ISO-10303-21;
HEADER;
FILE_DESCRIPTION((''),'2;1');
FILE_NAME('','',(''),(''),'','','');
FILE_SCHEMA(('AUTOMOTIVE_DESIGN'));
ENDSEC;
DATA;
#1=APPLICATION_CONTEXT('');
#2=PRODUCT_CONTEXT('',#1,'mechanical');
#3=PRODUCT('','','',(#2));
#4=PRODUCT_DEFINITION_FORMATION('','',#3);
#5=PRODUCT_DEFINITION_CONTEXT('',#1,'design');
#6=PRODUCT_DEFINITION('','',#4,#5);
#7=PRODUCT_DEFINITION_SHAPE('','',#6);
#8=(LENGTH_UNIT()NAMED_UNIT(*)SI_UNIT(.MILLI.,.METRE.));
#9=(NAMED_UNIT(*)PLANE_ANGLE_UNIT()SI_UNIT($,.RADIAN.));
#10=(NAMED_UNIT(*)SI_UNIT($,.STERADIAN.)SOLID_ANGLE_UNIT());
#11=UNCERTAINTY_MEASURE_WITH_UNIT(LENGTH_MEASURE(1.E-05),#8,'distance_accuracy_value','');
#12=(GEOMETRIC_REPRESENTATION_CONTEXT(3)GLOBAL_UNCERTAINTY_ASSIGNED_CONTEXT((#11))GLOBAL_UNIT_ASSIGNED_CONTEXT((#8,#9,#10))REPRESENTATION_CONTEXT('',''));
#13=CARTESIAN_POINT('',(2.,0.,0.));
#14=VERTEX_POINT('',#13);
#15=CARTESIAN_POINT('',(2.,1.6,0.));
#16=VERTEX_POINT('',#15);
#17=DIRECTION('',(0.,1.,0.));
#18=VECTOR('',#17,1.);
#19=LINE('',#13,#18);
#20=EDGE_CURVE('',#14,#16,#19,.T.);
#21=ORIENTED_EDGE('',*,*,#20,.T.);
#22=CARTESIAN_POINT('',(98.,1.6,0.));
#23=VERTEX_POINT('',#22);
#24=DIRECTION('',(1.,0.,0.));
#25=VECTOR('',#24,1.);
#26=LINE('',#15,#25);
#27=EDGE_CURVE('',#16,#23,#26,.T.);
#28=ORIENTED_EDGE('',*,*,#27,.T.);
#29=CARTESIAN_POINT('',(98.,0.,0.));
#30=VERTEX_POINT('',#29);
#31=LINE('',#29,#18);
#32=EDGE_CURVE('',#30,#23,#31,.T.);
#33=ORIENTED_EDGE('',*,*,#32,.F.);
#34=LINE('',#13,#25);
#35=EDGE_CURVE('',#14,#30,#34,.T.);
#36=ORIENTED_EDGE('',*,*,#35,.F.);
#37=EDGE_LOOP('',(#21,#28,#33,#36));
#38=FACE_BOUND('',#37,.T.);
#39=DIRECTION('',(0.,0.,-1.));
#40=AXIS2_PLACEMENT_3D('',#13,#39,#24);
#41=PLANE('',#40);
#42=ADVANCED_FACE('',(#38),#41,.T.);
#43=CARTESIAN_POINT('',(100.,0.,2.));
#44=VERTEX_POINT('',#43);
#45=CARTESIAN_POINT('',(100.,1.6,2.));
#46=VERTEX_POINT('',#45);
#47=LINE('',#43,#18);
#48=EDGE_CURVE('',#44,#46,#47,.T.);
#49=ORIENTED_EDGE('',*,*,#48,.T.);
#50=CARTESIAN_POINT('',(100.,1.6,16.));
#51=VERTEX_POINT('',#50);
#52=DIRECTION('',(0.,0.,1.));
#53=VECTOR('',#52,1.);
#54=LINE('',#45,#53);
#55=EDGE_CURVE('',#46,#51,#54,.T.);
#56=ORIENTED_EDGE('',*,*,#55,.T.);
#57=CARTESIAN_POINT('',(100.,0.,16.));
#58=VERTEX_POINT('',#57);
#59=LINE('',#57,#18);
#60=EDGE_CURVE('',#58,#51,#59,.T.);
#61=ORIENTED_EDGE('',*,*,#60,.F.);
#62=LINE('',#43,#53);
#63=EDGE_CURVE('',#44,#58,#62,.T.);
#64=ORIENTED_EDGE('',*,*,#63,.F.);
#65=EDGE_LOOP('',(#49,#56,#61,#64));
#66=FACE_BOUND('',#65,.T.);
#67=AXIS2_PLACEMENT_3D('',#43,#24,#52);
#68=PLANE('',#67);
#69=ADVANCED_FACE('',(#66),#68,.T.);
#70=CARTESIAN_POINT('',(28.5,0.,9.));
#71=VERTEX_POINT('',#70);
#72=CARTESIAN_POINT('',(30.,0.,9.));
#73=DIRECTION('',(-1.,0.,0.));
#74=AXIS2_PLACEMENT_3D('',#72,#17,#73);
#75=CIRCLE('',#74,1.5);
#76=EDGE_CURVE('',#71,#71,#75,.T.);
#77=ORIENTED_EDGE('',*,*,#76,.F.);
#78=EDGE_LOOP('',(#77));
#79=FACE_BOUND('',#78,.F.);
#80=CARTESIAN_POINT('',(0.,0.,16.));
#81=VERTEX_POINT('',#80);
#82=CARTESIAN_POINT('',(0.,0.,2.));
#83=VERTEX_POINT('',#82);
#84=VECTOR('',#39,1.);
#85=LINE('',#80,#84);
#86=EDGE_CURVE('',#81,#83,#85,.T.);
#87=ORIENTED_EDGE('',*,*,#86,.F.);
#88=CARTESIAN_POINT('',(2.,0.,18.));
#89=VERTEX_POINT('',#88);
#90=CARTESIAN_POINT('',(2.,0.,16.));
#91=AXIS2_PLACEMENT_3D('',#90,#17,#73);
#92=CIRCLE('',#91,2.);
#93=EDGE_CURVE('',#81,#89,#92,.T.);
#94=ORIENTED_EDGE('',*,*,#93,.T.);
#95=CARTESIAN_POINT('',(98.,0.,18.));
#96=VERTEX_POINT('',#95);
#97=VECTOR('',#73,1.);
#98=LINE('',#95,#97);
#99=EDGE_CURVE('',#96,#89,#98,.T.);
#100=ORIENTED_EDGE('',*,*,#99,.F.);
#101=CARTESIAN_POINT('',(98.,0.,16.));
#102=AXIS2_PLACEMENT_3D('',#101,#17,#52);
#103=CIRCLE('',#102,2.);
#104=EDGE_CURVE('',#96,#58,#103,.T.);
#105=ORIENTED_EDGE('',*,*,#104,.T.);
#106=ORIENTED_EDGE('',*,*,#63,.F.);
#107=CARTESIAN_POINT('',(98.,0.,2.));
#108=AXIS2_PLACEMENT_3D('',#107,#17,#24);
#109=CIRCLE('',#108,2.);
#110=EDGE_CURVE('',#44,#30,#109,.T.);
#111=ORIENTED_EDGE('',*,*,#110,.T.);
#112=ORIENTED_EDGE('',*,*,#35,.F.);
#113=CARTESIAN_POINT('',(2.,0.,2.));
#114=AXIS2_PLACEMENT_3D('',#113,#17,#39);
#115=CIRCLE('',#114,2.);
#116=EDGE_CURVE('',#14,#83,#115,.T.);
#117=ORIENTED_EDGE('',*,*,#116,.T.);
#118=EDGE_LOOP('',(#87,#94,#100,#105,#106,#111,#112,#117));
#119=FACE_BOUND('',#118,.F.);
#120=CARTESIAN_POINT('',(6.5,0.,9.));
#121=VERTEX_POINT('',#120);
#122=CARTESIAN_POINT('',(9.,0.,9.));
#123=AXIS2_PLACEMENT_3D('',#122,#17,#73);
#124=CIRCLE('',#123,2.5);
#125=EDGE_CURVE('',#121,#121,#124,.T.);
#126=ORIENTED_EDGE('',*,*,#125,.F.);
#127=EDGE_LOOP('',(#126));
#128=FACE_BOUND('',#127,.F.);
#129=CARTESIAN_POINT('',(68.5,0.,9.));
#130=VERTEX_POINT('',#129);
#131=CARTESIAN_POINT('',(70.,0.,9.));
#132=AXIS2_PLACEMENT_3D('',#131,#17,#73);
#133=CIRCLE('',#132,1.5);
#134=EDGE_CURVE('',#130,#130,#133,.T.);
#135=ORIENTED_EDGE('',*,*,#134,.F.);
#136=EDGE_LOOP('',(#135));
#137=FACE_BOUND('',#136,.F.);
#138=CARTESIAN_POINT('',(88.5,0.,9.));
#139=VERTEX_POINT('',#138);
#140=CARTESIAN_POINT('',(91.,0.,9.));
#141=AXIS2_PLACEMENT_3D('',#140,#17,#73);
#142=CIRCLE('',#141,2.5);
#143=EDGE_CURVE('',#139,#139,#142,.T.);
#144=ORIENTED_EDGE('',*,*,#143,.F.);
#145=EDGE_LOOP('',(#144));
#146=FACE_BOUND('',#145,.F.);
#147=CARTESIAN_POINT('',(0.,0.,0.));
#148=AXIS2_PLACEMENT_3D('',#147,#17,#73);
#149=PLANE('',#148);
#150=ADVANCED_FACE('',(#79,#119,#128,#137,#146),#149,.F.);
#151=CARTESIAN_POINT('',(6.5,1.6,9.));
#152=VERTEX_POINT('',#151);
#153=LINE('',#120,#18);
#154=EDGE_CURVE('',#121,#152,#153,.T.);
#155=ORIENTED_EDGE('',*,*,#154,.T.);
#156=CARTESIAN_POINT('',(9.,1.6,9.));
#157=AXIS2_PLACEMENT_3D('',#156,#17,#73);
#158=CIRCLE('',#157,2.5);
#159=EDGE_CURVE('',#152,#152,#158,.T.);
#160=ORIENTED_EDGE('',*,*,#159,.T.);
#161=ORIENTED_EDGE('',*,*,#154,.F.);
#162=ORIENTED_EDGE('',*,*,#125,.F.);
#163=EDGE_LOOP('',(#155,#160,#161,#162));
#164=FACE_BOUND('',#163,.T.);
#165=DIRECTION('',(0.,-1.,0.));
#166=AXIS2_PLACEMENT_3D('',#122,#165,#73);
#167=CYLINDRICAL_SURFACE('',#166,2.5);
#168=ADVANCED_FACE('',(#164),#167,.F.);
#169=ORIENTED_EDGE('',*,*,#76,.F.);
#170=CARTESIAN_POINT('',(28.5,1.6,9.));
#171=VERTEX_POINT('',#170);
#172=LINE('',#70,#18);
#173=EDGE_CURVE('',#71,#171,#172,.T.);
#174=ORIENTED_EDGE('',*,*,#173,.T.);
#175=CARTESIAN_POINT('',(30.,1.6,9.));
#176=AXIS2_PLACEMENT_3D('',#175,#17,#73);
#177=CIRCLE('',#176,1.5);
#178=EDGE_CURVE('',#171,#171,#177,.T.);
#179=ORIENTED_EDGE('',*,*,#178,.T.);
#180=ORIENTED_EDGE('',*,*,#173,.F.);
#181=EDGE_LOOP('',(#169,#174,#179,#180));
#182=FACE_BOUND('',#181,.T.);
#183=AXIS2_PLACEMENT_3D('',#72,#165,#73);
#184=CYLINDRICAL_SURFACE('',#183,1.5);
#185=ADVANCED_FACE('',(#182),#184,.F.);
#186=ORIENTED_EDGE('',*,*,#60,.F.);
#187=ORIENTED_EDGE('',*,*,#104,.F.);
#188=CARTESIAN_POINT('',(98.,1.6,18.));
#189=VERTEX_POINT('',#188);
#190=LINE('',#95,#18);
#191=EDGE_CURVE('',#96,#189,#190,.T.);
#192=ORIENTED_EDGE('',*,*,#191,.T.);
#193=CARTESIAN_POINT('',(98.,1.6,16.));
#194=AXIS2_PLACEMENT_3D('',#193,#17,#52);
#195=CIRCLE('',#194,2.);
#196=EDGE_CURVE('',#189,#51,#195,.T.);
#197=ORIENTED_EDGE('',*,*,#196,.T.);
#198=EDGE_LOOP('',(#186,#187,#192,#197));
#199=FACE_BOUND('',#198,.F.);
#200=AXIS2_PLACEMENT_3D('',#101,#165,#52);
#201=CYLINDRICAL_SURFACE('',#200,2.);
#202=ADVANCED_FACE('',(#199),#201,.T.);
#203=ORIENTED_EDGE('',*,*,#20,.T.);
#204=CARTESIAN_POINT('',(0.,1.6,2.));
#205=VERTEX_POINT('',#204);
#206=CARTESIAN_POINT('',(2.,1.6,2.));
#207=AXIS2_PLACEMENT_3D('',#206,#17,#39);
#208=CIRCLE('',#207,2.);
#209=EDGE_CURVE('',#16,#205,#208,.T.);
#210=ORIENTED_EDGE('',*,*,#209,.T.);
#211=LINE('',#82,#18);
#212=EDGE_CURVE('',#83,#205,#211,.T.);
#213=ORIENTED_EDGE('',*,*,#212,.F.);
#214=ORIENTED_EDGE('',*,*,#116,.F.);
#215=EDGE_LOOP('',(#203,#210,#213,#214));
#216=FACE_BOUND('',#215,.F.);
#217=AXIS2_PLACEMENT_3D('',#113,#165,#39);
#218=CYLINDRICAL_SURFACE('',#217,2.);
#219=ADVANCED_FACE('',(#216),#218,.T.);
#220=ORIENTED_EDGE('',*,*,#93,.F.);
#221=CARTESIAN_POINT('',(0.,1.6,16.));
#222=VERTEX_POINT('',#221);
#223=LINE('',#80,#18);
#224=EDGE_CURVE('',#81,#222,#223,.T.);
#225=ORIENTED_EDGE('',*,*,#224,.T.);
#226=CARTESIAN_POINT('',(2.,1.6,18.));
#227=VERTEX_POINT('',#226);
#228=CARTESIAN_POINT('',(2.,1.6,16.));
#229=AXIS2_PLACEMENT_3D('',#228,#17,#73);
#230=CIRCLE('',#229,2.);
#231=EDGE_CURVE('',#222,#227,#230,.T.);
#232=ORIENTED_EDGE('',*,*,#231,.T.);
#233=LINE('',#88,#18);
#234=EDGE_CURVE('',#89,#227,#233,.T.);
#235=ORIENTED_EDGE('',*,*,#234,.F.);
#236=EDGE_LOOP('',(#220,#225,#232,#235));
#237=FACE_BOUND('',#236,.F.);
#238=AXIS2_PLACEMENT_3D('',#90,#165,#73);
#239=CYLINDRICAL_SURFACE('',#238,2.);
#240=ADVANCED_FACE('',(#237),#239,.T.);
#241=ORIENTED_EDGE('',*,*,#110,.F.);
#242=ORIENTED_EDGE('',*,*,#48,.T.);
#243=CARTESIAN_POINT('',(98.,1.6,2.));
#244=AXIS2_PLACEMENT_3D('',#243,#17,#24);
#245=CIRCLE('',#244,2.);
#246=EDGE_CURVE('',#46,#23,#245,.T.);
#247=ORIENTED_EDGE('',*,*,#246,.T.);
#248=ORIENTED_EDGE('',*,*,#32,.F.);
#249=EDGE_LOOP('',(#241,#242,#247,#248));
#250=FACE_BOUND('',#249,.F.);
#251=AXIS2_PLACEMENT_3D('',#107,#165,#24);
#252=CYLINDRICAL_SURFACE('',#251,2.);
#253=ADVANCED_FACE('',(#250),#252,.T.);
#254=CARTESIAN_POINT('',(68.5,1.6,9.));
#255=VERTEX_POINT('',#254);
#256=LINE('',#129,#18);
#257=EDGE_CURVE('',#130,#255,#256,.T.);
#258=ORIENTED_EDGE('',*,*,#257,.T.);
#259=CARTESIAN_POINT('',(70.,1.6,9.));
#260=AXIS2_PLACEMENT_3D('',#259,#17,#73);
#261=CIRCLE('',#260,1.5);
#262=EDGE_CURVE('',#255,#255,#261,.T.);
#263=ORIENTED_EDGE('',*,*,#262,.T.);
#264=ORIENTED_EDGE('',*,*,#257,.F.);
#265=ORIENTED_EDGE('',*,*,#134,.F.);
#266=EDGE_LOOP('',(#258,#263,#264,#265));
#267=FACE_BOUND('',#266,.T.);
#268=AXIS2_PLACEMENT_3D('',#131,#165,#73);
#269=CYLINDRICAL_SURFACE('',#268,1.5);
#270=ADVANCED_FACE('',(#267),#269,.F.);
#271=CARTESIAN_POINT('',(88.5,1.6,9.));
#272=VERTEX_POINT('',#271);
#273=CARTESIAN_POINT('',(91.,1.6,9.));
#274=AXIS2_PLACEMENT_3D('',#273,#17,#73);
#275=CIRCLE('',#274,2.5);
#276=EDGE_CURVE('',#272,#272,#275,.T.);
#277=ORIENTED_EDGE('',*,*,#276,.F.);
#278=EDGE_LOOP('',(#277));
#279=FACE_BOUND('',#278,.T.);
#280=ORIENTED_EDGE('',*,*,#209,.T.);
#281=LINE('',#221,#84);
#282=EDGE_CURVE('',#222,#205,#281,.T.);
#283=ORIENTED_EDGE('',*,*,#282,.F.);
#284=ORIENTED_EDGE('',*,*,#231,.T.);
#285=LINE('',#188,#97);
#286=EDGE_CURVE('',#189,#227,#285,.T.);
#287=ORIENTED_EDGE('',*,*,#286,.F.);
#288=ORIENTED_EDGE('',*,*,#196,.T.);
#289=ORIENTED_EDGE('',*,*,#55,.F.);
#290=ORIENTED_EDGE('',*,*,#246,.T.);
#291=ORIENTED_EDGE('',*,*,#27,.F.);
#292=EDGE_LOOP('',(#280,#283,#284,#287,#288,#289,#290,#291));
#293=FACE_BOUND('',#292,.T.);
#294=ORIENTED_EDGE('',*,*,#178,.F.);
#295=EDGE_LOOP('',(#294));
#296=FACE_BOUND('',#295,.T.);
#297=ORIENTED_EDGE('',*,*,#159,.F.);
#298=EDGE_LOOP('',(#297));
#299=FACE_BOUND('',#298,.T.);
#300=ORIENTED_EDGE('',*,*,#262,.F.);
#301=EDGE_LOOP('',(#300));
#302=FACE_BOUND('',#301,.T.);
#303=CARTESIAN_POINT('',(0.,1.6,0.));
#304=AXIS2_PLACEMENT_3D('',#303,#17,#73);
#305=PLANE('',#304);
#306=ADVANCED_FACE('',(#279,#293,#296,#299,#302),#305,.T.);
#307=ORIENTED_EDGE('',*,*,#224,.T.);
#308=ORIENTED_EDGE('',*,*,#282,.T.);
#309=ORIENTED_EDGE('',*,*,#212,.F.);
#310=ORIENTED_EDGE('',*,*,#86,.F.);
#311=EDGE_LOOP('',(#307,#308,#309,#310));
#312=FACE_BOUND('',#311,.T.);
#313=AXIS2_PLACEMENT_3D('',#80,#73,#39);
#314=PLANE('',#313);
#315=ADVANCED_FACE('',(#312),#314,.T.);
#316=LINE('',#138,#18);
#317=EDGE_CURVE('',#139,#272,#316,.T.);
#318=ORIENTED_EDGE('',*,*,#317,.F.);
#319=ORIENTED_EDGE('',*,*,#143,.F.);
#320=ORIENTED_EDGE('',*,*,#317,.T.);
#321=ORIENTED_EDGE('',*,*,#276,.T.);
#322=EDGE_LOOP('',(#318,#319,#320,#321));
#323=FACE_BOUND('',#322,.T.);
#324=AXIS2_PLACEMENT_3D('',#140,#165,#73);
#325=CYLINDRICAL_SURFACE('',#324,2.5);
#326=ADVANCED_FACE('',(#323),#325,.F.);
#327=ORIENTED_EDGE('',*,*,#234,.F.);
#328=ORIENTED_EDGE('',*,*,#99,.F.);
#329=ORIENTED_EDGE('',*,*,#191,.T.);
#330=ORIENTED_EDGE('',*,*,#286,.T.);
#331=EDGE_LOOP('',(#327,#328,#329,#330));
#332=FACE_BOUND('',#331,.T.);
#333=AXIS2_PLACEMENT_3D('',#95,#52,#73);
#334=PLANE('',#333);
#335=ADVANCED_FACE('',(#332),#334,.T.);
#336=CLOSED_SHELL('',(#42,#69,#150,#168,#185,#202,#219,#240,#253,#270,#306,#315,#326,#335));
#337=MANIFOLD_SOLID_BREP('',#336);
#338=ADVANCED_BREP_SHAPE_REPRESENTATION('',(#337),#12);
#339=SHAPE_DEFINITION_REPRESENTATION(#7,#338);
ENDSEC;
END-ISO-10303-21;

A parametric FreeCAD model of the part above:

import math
import FreeCAD as App
import Part
import Sketcher

doc = App.newDocument("Part")
params = doc.addObject("Spreadsheet::Sheet", "Params")
for row, (alias, value) in enumerate([
    ("sketch1_diameter", "5 mm"),
    ("sketch1_diameter2", "3 mm"),
    ("sketch1_radius", "2 mm"),
    ("pad1_length", "1.6 mm"),
], start=1):
    params.set(f"A{row}", alias)
    params.set(f"B{row}", "=" + value)
    params.setAlias(f"B{row}", alias)

body = doc.addObject("PartDesign::Body", "Body")

sketch1 = doc.addObject("Sketcher::SketchObject", "Sketch")
body.addObject(sketch1)
sketch1.AttachmentSupport = (doc.XZ_Plane, [""])
sketch1.MapMode = "FlatFace"
sketch1.addGeometry([
    Part.LineSegment(App.Vector(98, 0, 0), App.Vector(2, 0, 0)),
    Part.ArcOfCircle(Part.Circle(App.Vector(2, 2, 0), App.Vector(0, 0, 1), 2), math.radians(180), math.radians(270)),
    Part.LineSegment(App.Vector(0, 2, 0), App.Vector(0, 16, 0)),
    Part.ArcOfCircle(Part.Circle(App.Vector(2, 16, 0), App.Vector(0, 0, 1), 2), math.radians(90), math.radians(180)),
    Part.LineSegment(App.Vector(2, 18, 0), App.Vector(98, 18, 0)),
    Part.ArcOfCircle(Part.Circle(App.Vector(98, 16, 0), App.Vector(0, 0, 1), 2), math.radians(0), math.radians(90)),
    Part.LineSegment(App.Vector(100, 16, 0), App.Vector(100, 2, 0)),
    Part.ArcOfCircle(Part.Circle(App.Vector(98, 2, 0), App.Vector(0, 0, 1), 2), math.radians(-90), math.radians(0)),
    Part.Circle(App.Vector(91, 9, 0), App.Vector(0, 0, 1), 2.5),
    Part.Circle(App.Vector(70, 9, 0), App.Vector(0, 0, 1), 1.5),
    Part.Circle(App.Vector(30, 9, 0), App.Vector(0, 0, 1), 1.5),
    Part.Circle(App.Vector(9, 9, 0), App.Vector(0, 0, 1), 2.5),
], False)
sketch1.addConstraint([
    Sketcher.Constraint("Tangent", 0, 2, 1, 2),
    Sketcher.Constraint("Tangent", 1, 1, 2, 1),
    Sketcher.Constraint("Tangent", 2, 2, 3, 2),
    Sketcher.Constraint("Tangent", 3, 1, 4, 1),
    Sketcher.Constraint("Tangent", 4, 2, 5, 2),
    Sketcher.Constraint("Tangent", 5, 1, 6, 1),
    Sketcher.Constraint("Tangent", 6, 2, 7, 2),
    Sketcher.Constraint("Tangent", 7, 1, 0, 1),
    Sketcher.Constraint("Horizontal", 0),
    Sketcher.Constraint("Vertical", 2),
    Sketcher.Constraint("Horizontal", 4),
    Sketcher.Constraint("Vertical", 6),
    Sketcher.Constraint("Equal", 1, 3),
    Sketcher.Constraint("Equal", 3, 5),
    Sketcher.Constraint("Equal", 5, 7),
    Sketcher.Constraint("Equal", 9, 10),
    Sketcher.Constraint("Equal", 8, 11),
    Sketcher.Constraint("PointOnObject", 0, 2, -1),
    Sketcher.Constraint("PointOnObject", 1, 1, -2),
    Sketcher.Constraint("Horizontal", 8, 3, 9, 3),
    Sketcher.Constraint("Horizontal", 9, 3, 10, 3),
    Sketcher.Constraint("Horizontal", 10, 3, 11, 3),
    Sketcher.Constraint("Diameter", 8, 5.0),
    Sketcher.Constraint("Diameter", 9, 3.0),
    Sketcher.Constraint("Radius", 1, 2.0),
    Sketcher.Constraint("DistanceY", -1, 1, 8, 3, 9.0),
    Sketcher.Constraint("DistanceX", -1, 1, 10, 3, 30.0),
    Sketcher.Constraint("DistanceX", -1, 1, 11, 3, 9.0),
    Sketcher.Constraint("DistanceY", -1, 1, 3, 1, 18.0),
    Sketcher.Constraint("DistanceX", -1, 1, 5, 1, 100.0),
    Sketcher.Constraint("DistanceX", 8, 3, 5, 1, 9.0),
    Sketcher.Constraint("DistanceX", 9, 3, 5, 1, 30.0),
])
sketch1.setExpression("Constraints[22]", "Params.sketch1_diameter")
sketch1.setExpression("Constraints[23]", "Params.sketch1_diameter2")
sketch1.setExpression("Constraints[24]", "Params.sketch1_radius")
pad1 = doc.addObject("PartDesign::Pad", "Pad")
body.addObject(pad1)
pad1.Profile = sketch1
pad1.setExpression("Length", "Params.pad1_length")
pad1.Reversed = True

doc.recompute()
